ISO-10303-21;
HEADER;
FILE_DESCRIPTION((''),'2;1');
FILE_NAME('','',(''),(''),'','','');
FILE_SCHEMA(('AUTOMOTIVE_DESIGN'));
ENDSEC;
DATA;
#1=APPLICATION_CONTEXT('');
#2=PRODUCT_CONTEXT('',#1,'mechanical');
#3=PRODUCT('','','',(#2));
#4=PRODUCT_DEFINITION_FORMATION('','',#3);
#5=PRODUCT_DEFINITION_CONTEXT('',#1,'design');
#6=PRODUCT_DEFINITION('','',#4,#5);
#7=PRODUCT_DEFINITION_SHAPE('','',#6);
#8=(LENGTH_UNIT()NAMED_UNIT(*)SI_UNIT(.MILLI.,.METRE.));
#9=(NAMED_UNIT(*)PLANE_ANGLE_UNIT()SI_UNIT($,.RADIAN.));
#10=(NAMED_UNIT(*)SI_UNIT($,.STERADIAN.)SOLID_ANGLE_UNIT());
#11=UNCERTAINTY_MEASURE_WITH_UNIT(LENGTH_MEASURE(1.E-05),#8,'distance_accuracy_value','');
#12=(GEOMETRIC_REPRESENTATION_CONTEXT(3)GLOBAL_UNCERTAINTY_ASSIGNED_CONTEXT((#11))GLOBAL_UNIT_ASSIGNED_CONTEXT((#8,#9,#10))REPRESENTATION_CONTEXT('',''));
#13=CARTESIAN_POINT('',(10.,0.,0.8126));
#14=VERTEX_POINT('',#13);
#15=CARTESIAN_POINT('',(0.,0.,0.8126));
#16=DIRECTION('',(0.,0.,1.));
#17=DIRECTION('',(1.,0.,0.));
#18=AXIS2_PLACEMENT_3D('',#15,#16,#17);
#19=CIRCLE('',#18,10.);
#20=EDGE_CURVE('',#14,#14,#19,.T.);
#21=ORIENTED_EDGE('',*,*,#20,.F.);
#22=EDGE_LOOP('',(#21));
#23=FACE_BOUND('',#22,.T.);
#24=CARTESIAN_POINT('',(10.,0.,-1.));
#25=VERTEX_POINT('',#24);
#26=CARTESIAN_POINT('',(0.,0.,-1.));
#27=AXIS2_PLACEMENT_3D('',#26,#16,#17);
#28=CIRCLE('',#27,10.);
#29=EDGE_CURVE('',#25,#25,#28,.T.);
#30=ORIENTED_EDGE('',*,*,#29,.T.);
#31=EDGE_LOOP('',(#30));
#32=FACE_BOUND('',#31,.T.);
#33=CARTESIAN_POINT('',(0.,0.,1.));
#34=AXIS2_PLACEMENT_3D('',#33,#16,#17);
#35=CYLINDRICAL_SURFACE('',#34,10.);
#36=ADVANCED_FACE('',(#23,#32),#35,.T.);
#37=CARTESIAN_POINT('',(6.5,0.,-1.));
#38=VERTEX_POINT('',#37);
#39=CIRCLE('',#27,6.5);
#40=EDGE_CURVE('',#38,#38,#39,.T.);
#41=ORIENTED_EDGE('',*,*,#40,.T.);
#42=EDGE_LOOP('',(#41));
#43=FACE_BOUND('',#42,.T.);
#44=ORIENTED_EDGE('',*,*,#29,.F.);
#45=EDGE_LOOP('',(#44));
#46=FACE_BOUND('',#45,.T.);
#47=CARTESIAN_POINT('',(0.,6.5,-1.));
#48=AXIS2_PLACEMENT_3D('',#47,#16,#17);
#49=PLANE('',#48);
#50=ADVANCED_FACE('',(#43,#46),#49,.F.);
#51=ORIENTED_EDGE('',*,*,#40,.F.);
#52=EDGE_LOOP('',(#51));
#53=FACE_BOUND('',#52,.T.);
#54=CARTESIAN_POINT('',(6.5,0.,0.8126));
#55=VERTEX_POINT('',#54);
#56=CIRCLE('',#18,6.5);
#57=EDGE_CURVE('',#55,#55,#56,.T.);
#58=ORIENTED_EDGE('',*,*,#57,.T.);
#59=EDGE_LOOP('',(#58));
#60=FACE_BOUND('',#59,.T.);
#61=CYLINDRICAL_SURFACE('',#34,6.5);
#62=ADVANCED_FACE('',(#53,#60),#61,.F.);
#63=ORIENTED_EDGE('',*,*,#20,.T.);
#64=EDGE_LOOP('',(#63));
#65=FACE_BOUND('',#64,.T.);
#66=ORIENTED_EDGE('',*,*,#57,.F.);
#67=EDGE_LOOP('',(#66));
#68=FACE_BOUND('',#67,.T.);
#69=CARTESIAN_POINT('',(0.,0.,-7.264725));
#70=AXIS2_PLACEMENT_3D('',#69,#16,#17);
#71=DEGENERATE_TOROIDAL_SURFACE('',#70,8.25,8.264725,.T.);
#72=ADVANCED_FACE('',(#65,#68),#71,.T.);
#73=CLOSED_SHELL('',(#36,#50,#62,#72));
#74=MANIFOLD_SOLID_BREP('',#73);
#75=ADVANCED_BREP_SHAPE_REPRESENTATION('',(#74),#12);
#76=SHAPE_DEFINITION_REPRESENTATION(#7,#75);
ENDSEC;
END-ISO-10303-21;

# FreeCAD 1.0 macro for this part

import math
import FreeCAD as App
import Part
import Sketcher
Q = App.Units.Quantity

doc = App.newDocument("Part")
body = doc.addObject("PartDesign::Body", "Body")

sketch1 = body.newObject("Sketcher::SketchObject", "Sketch")
sketch1.AttachmentSupport = (doc.getObject("YZ_Plane"), [""])
sketch1.MapMode = "FlatFace"
sketch1.addGeometry([
    Part.LineSegment(App.Vector(10, -1, 0), App.Vector(10, 0.8126, 0)),
    Part.ArcOfCircle(Part.Circle(App.Vector(8.25, -7.264725, 0), App.Vector(0, 0, 1), 8.264725), math.radians(77.775467), math.radians(102.224533)),
    Part.LineSegment(App.Vector(6.5, 0.8126, 0), App.Vector(6.5, -1, 0)),
    Part.LineSegment(App.Vector(6.5, -1, 0), App.Vector(10, -1, 0)),
], False)
sketch1.addConstraint([
    Sketcher.Constraint("Coincident", 0, 2, 1, 1),
    Sketcher.Constraint("Coincident", 1, 2, 2, 1),
    Sketcher.Constraint("Coincident", 2, 2, 3, 1),
    Sketcher.Constraint("Coincident", 3, 2, 0, 1),
    Sketcher.Constraint("Vertical", 0),
    Sketcher.Constraint("Vertical", 2),
    Sketcher.Constraint("Horizontal", 3),
    Sketcher.Constraint("Horizontal", 0, 2, 1, 2),
    Sketcher.Constraint("DistanceX", 3, 1, 3, 2, Q("3.5 mm")),
    Sketcher.Constraint("DistanceX", -1, 1, 0, 2, Q("10 mm")),
    Sketcher.Constraint("DistanceY", 2, 2, -1, 1, Q("1 mm")),
    Sketcher.Constraint("DistanceY", 0, 1, 0, 2, Q("1.8126 mm")),
    Sketcher.Constraint("Radius", 1, Q("8.264725 mm")),
])
revolution = body.newObject("PartDesign::Revolution", "Revolution")
revolution.Profile = sketch1
revolution.ReferenceAxis = (sketch1, ["V_Axis"])
revolution.Angle = 360

doc.recompute()
